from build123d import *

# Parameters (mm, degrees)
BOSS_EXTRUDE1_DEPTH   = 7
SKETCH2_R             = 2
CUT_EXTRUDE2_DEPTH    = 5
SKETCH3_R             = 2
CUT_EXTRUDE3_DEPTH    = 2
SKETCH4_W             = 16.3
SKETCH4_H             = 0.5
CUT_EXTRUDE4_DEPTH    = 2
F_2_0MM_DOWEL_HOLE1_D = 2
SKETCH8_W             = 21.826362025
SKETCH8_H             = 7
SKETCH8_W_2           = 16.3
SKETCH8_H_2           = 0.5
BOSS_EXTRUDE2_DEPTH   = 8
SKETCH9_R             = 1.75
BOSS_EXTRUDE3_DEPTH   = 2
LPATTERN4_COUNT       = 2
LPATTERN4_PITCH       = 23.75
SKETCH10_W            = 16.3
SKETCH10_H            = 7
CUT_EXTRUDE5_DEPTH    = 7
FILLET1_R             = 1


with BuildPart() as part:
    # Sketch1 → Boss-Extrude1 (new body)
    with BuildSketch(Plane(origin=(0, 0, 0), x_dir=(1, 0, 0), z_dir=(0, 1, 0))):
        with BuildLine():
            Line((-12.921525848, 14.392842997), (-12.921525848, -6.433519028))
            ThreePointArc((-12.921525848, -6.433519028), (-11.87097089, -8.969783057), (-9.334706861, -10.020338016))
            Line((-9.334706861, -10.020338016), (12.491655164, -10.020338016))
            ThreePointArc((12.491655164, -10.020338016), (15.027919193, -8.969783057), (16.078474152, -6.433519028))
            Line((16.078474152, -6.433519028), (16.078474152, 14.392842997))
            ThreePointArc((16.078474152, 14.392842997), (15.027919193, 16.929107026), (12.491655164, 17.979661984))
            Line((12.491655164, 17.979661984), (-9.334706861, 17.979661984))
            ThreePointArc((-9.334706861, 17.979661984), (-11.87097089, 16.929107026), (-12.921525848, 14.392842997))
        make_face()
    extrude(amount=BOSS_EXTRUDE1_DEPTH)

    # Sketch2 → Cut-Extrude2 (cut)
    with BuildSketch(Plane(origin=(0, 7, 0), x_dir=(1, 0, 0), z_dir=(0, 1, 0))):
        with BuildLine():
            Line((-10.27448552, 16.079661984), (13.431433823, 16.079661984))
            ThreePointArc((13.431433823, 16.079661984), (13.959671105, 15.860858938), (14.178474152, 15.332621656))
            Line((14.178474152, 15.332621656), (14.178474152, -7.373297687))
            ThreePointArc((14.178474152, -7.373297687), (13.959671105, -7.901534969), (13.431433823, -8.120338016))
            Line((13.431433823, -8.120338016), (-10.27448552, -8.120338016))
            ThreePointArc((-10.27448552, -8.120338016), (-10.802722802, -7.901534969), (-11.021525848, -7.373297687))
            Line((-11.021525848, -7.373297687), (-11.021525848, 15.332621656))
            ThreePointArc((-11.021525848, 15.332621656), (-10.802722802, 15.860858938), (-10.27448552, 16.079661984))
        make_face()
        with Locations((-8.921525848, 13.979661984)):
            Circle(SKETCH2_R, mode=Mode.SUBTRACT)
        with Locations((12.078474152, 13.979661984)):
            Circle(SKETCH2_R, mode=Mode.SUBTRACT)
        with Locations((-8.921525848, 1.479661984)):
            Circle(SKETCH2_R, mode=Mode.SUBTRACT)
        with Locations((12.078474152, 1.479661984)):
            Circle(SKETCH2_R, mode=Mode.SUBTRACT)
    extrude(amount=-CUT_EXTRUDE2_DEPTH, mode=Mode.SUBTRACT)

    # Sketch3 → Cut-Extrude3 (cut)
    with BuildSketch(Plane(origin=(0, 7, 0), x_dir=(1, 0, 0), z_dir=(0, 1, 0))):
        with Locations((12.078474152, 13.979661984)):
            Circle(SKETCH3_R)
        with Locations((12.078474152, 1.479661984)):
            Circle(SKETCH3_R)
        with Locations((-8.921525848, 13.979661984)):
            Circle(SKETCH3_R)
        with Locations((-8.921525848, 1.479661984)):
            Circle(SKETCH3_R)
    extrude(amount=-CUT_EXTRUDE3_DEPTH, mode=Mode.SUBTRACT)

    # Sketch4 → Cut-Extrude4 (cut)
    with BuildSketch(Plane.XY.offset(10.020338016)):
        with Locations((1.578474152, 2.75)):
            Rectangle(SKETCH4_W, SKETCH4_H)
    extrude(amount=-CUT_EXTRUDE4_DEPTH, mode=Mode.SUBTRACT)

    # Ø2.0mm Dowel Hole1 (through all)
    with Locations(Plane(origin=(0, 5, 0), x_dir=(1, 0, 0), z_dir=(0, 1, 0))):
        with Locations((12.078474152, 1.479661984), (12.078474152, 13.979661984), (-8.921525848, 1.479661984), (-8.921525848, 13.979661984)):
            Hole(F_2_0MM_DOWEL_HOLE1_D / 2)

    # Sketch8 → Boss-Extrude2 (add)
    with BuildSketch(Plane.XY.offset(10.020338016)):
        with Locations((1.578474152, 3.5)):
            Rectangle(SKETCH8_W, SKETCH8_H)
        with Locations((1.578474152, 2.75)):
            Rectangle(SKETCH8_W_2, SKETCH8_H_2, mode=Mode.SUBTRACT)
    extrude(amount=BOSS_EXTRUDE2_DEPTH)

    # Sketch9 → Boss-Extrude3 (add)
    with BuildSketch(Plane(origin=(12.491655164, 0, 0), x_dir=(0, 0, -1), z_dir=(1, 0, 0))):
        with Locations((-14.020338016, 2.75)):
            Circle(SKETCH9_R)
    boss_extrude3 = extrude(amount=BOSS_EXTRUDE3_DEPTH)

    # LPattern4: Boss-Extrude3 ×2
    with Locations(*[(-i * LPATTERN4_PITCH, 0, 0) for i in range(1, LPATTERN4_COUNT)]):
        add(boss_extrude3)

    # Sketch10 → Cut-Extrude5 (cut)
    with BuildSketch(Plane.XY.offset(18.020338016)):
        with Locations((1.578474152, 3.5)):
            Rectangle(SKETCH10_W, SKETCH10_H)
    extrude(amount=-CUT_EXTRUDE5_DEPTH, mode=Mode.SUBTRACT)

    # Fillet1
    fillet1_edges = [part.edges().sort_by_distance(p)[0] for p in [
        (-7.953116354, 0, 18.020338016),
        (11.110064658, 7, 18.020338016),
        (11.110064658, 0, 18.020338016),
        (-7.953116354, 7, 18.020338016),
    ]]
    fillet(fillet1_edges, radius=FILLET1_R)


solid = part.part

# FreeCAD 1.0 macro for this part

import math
import FreeCAD as App
import Part
import Sketcher

V = App.Vector
Q = App.Units.Quantity


def edges_at(feature, points):
    """Names of the edges that pass closest to the given points."""
    edges = feature.Shape.Edges
    near = lambda p: min(range(len(edges)), key=lambda i: edges[i].distToShape(Part.Vertex(*p))[0])
    return sorted({f"Edge{near(p) + 1}" for p in points})

doc = App.newDocument("Part")
params = doc.addObject("Spreadsheet::Sheet", "Params")
for row, (alias, value) in enumerate([
    ("pad1_length", "7 mm"),
    ("sketch2_diameter", "4 mm"),
    ("pocket1_length", "5 mm"),
    ("sketch3_diameter", "4 mm"),
    ("pocket2_length", "2 mm"),
    ("sketch4_width", "16.3 mm"),
    ("sketch4_height", "0.5 mm"),
    ("pocket3_length", "2 mm"),
    ("sketch5_diameter", "2 mm"),
    ("hole_diameter", "2 mm"),
    ("sketch6_height", "7 mm"),
    ("sketch6_width", "16.3 mm"),
    ("sketch6_height2", "0.5 mm"),
    ("pad2_length", "8 mm"),
    ("sketch7_diameter", "3.5 mm"),
    ("pad3_length", "2 mm"),
    ("linearpattern_pitch", "23.75 mm"),
    ("sketch8_height", "7 mm"),
    ("sketch8_width", "16.3 mm"),
    ("pocket4_length", "7 mm"),
    ("fillet_radius", "1 mm"),
], start=1):
    params.set(f"A{row}", alias)
    params.set(f"B{row}", "=" + value)
    params.setAlias(f"B{row}", alias)

body = doc.addObject("PartDesign::Body", "Body")

# Sketch on XZ plane
sketch1 = body.newObject("Sketcher::SketchObject", "Sketch")
sketch1.AttachmentSupport = (doc.getObject("XZ_Plane"), [""])
sketch1.MapMode = "FlatFace"
sketch1.addGeometry(Part.LineSegment(V(-12.9, -14.4, 0), V(-12.9, 6.4, 0)), False)
sketch1.addGeometry(Part.ArcOfCircle(Part.Circle(V(-9.3, 6.4, 0), V(0, 0, 1), 3.6), math.radians(90), math.radians(180)), False)
sketch1.addGeometry(Part.LineSegment(V(-9.3, 10, 0), V(12.5, 10, 0)), False)
sketch1.addGeometry(Part.ArcOfCircle(Part.Circle(V(12.5, 6.4, 0), V(0, 0, 1), 3.6), math.radians(0), math.radians(90)), False)
sketch1.addGeometry(Part.LineSegment(V(16.1, 6.4, 0), V(16.1, -14.4, 0)), False)
sketch1.addGeometry(Part.ArcOfCircle(Part.Circle(V(12.5, -14.4, 0), V(0, 0, 1), 3.6), math.radians(-90), math.radians(0)), False)
sketch1.addGeometry(Part.LineSegment(V(12.5, -18, 0), V(-9.3, -18, 0)), False)
sketch1.addGeometry(Part.ArcOfCircle(Part.Circle(V(-9.3, -14.4, 0), V(0, 0, 1), 3.6), math.radians(180), math.radians(270)), False)
sketch1.addConstraint(Sketcher.Constraint("Tangent", 0, 2, 1, 2))
sketch1.addConstraint(Sketcher.Constraint("Tangent", 1, 1, 2, 1))
sketch1.addConstraint(Sketcher.Constraint("Tangent", 2, 2, 3, 2))
sketch1.addConstraint(Sketcher.Constraint("Tangent", 3, 1, 4, 1))
sketch1.addConstraint(Sketcher.Constraint("Tangent", 4, 2, 5, 2))
sketch1.addConstraint(Sketcher.Constraint("Tangent", 5, 1, 6, 1))
sketch1.addConstraint(Sketcher.Constraint("Tangent", 6, 2, 7, 2))
sketch1.addConstraint(Sketcher.Constraint("Tangent", 7, 1, 0, 1))
sketch1.addConstraint(Sketcher.Constraint("Vertical", 0))
sketch1.addConstraint(Sketcher.Constraint("Horizontal", 2))
sketch1.addConstraint(Sketcher.Constraint("Vertical", 4))
sketch1.addConstraint(Sketcher.Constraint("Horizontal", 6))
sketch1.addConstraint(Sketcher.Constraint("Equal", 1, 3))
sketch1.addConstraint(Sketcher.Constraint("Equal", 3, 5))
sketch1.addConstraint(Sketcher.Constraint("Equal", 5, 7))
sketch1.addConstraint(Sketcher.Constraint("Radius", 1, Q("3.586819 mm")))
sketch1.addConstraint(Sketcher.Constraint("DistanceX", 2, 1, 2, 2, Q("21.826362 mm")))
sketch1.addConstraint(Sketcher.Constraint("DistanceY", 0, 1, 0, 2, Q("20.826362 mm")))
sketch1.addConstraint(Sketcher.Constraint("DistanceY", -1, 1, 1, 3, Q("6.433519 mm")))
sketch1.addConstraint(Sketcher.Constraint("DistanceX", 1, 3, -1, 1, Q("9.334707 mm")))
pad1 = body.newObject("PartDesign::Pad", "Pad")
pad1.Profile = sketch1
pad1.setExpression("Length", "Params.pad1_length")
pad1.Reversed = True

# Sketch on XZ plane
sketch2 = body.newObject("Sketcher::SketchObject", "Sketch001")
sketch2.AttachmentSupport = (doc.getObject("XZ_Plane"), [""])
sketch2.MapMode = "FlatFace"
sketch2.AttachmentOffset = App.Placement(V(0, 0, -7), App.Rotation())
sketch2.addGeometry(Part.LineSegment(V(13.4, -16.1, 0), V(-10.3, -16.1, 0)), False)
sketch2.addGeometry(Part.ArcOfCircle(Part.Circle(V(-10.3, -15.3, 0), V(0, 0, 1), 0.7), math.radians(180), math.radians(270)), False)
sketch2.addGeometry(Part.LineSegment(V(-11, -15.3, 0), V(-11, 7.4, 0)), False)
sketch2.addGeometry(Part.ArcOfCircle(Part.Circle(V(-10.3, 7.4, 0), V(0, 0, 1), 0.7), math.radians(90), math.radians(180)), False)
sketch2.addGeometry(Part.LineSegment(V(-10.3, 8.1, 0), V(13.4, 8.1, 0)), False)
sketch2.addGeometry(Part.ArcOfCircle(Part.Circle(V(13.4, 7.4, 0), V(0, 0, 1), 0.7), math.radians(0), math.radians(90)), False)
sketch2.addGeometry(Part.LineSegment(V(14.2, 7.4, 0), V(14.2, -15.3, 0)), False)
sketch2.addGeometry(Part.ArcOfCircle(Part.Circle(V(13.4, -15.3, 0), V(0, 0, 1), 0.7), math.radians(-90), math.radians(0)), False)
sketch2.addGeometry(Part.Circle(V(12.1, -1.5, 0), V(0, 0, 1), 2), False)
sketch2.addGeometry(Part.Circle(V(-8.9, -1.5, 0), V(0, 0, 1), 2), False)
sketch2.addGeometry(Part.Circle(V(12.1, -14, 0), V(0, 0, 1), 2), False)
sketch2.addGeometry(Part.Circle(V(-8.9, -14, 0), V(0, 0, 1), 2), False)
sketch2.addConstraint(Sketcher.Constraint("Tangent", 0, 2, 1, 2))
sketch2.addConstraint(Sketcher.Constraint("Tangent", 1, 1, 2, 1))
sketch2.addConstraint(Sketcher.Constraint("Tangent", 2, 2, 3, 2))
sketch2.addConstraint(Sketcher.Constraint("Tangent", 3, 1, 4, 1))
sketch2.addConstraint(Sketcher.Constraint("Tangent", 4, 2, 5, 2))
sketch2.addConstraint(Sketcher.Constraint("Tangent", 5, 1, 6, 1))
sketch2.addConstraint(Sketcher.Constraint("Tangent", 6, 2, 7, 2))
sketch2.addConstraint(Sketcher.Constraint("Tangent", 7, 1, 0, 1))
sketch2.addConstraint(Sketcher.Constraint("Horizontal", 0))
sketch2.addConstraint(Sketcher.Constraint("Vertical", 2))
sketch2.addConstraint(Sketcher.Constraint("Horizontal", 4))
sketch2.addConstraint(Sketcher.Constraint("Vertical", 6))
sketch2.addConstraint(Sketcher.Constraint("Equal", 1, 3))
sketch2.addConstraint(Sketcher.Constraint("Equal", 3, 5))
sketch2.addConstraint(Sketcher.Constraint("Equal", 5, 7))
sketch2.addConstraint(Sketcher.Constraint("Equal", 8, 9))
sketch2.addConstraint(Sketcher.Constraint("Equal", 9, 10))
sketch2.addConstraint(Sketcher.Constraint("Equal", 10, 11))
sketch2.addConstraint(Sketcher.Constraint("Horizontal", 8, 3, 9, 3))
sketch2.addConstraint(Sketcher.Constraint("Horizontal", 10, 3, 11, 3))
sketch2.addConstraint(Sketcher.Constraint("Vertical", 8, 3, 10, 3))
sketch2.addConstraint(Sketcher.Constraint("Vertical", 9, 3, 11, 3))
sketch2.addConstraint(Sketcher.Constraint("Diameter", 8, Q("4 mm")))
sketch2.addConstraint(Sketcher.Constraint("DistanceX", 9, 3, 8, 3, Q("21 mm")))
sketch2.addConstraint(Sketcher.Constraint("DistanceY", 10, 3, 8, 3, Q("12.5 mm")))
sketch2.addConstraint(Sketcher.Constraint("DistanceY", 0, 2, 11, 3, Q("2.1 mm")))
sketch2.addConstraint(Sketcher.Constraint("DistanceX", 1, 1, 11, 3, Q("2.1 mm")))
sketch2.addConstraint(Sketcher.Constraint("DistanceY", 9, 3, 3, 1, Q("9.6 mm")))
sketch2.addConstraint(Sketcher.Constraint("DistanceX", 8, 3, 5, 1, Q("2.1 mm")))
sketch2.addConstraint(Sketcher.Constraint("Radius", 1, Q("0.74704 mm")))
sketch2.addConstraint(Sketcher.Constraint("DistanceY", 1, 3, -1, 1, Q("15.332622 mm")))
sketch2.addConstraint(Sketcher.Constraint("DistanceX", 1, 3, -1, 1, Q("10.274486 mm")))
sketch2.setExpression("Constraints[22]", "Params.sketch2_diameter")
pocket1 = body.newObject("PartDesign::Pocket", "Pocket")
pocket1.Profile = sketch2
pocket1.setExpression("Length", "Params.pocket1_length")
pocket1.Reversed = True

# Sketch on XZ plane
sketch3 = body.newObject("Sketcher::SketchObject", "Sketch002")
sketch3.AttachmentSupport = (doc.getObject("XZ_Plane"), [""])
sketch3.MapMode = "FlatFace"
sketch3.AttachmentOffset = App.Placement(V(0, 0, -7), App.Rotation())
sketch3.addGeometry(Part.Circle(V(12.1, -14, 0), V(0, 0, 1), 2), False)
sketch3.addGeometry(Part.Circle(V(12.1, -1.5, 0), V(0, 0, 1), 2), False)
sketch3.addGeometry(Part.Circle(V(-8.9, -14, 0), V(0, 0, 1), 2), False)
sketch3.addGeometry(Part.Circle(V(-8.9, -1.5, 0), V(0, 0, 1), 2), False)
sketch3.addConstraint(Sketcher.Constraint("Equal", 0, 1))
sketch3.addConstraint(Sketcher.Constraint("Equal", 1, 2))
sketch3.addConstraint(Sketcher.Constraint("Equal", 2, 3))
sketch3.addConstraint(Sketcher.Constraint("Horizontal", 0, 3, 2, 3))
sketch3.addConstraint(Sketcher.Constraint("Horizontal", 1, 3, 3, 3))
sketch3.addConstraint(Sketcher.Constraint("Vertical", 0, 3, 1, 3))
sketch3.addConstraint(Sketcher.Constraint("Vertical", 2, 3, 3, 3))
sketch3.addConstraint(Sketcher.Constraint("Diameter", 0, Q("4 mm")))
sketch3.addConstraint(Sketcher.Constraint("DistanceX", 2, 3, 0, 3, Q("21 mm")))
sketch3.addConstraint(Sketcher.Constraint("DistanceY", 0, 3, 1, 3, Q("12.5 mm")))
sketch3.addConstraint(Sketcher.Constraint("DistanceY", 0, 3, -1, 1, Q("13.979662 mm")))
sketch3.addConstraint(Sketcher.Constraint("DistanceX", -1, 1, 0, 3, Q("12.078474 mm")))
sketch3.setExpression("Constraints[7]", "Params.sketch3_diameter")
pocket2 = body.newObject("PartDesign::Pocket", "Pocket001")
pocket2.Profile = sketch3
pocket2.setExpression("Length", "Params.pocket2_length")
pocket2.Reversed = True

# Sketch on XY plane
sketch4 = body.newObject("Sketcher::SketchObject", "Sketch003")
sketch4.AttachmentSupport = (doc.getObject("XY_Plane"), [""])
sketch4.MapMode = "FlatFace"
sketch4.AttachmentOffset = App.Placement(V(0, 0, 10.020338), App.Rotation())
sketch4.addGeometry(Part.LineSegment(V(-6.6, 3, 0), V(-6.6, 2.5, 0)), False)
sketch4.addGeometry(Part.LineSegment(V(-6.6, 2.5, 0), V(9.7, 2.5, 0)), False)
sketch4.addGeometry(Part.LineSegment(V(9.7, 2.5, 0), V(9.7, 3, 0)), False)
sketch4.addGeometry(Part.LineSegment(V(9.7, 3, 0), V(-6.6, 3, 0)), False)
sketch4.addConstraint(Sketcher.Constraint("Coincident", 0, 2, 1, 1))
sketch4.addConstraint(Sketcher.Constraint("Coincident", 1, 2, 2, 1))
sketch4.addConstraint(Sketcher.Constraint("Coincident", 2, 2, 3, 1))
sketch4.addConstraint(Sketcher.Constraint("Coincident", 3, 2, 0, 1))
sketch4.addConstraint(Sketcher.Constraint("Vertical", 0))
sketch4.addConstraint(Sketcher.Constraint("Horizontal", 1))
sketch4.addConstraint(Sketcher.Constraint("Vertical", 2))
sketch4.addConstraint(Sketcher.Constraint("Horizontal", 3))
sketch4.addConstraint(Sketcher.Constraint("DistanceX", 1, 1, 1, 2, Q("16.3 mm")))
sketch4.addConstraint(Sketcher.Constraint("DistanceY", 0, 2, 0, 1, Q("0.5 mm")))
sketch4.addConstraint(Sketcher.Constraint("DistanceY", -1, 1, 2, 2, Q("3 mm")))
sketch4.addConstraint(Sketcher.Constraint("DistanceX", 0, 2, -1, 1, Q("6.571526 mm")))
sketch4.setExpression("Constraints[8]", "Params.sketch4_width")
sketch4.setExpression("Constraints[9]", "Params.sketch4_height")
pocket3 = body.newObject("PartDesign::Pocket", "Pocket002")
pocket3.Profile = sketch4
pocket3.setExpression("Length", "Params.pocket3_length")

# Sketch on XZ plane
sketch5 = body.newObject("Sketcher::SketchObject", "Sketch004")
sketch5.AttachmentSupport = (doc.getObject("XZ_Plane"), [""])
sketch5.MapMode = "FlatFace"
sketch5.AttachmentOffset = App.Placement(V(0, 0, -5), App.Rotation())
sketch5.addGeometry(Part.Circle(V(12.1, -1.5, 0), V(0, 0, 1), 1), False)
sketch5.addGeometry(Part.Circle(V(12.1, -14, 0), V(0, 0, 1), 1), False)
sketch5.addGeometry(Part.Circle(V(-8.9, -1.5, 0), V(0, 0, 1), 1), False)
sketch5.addGeometry(Part.Circle(V(-8.9, -14, 0), V(0, 0, 1), 1), False)
sketch5.addConstraint(Sketcher.Constraint("Equal", 0, 1))
sketch5.addConstraint(Sketcher.Constraint("Equal", 1, 2))
sketch5.addConstraint(Sketcher.Constraint("Equal", 2, 3))
sketch5.addConstraint(Sketcher.Constraint("Horizontal", 0, 3, 2, 3))
sketch5.addConstraint(Sketcher.Constraint("Horizontal", 1, 3, 3, 3))
sketch5.addConstraint(Sketcher.Constraint("Vertical", 0, 3, 1, 3))
sketch5.addConstraint(Sketcher.Constraint("Vertical", 2, 3, 3, 3))
sketch5.addConstraint(Sketcher.Constraint("Diameter", 0, Q("2 mm")))
sketch5.addConstraint(Sketcher.Constraint("DistanceX", 2, 3, 0, 3, Q("21 mm")))
sketch5.addConstraint(Sketcher.Constraint("DistanceY", 1, 3, 0, 3, Q("12.5 mm")))
sketch5.addConstraint(Sketcher.Constraint("DistanceY", 0, 3, -1, 1, Q("1.479662 mm")))
sketch5.addConstraint(Sketcher.Constraint("DistanceX", -1, 1, 0, 3, Q("12.078474 mm")))
sketch5.setExpression("Constraints[7]", "Params.sketch5_diameter")
doc.recompute()
hole = body.newObject("PartDesign::Hole", "Hole")
hole.Profile = sketch5
hole.ThreadType = "None"
hole.setExpression("Diameter", "Params.hole_diameter")
hole.DepthType = "ThroughAll"
hole.Reversed = True

# Sketch on XY plane
sketch6 = body.newObject("Sketcher::SketchObject", "Sketch005")
sketch6.AttachmentSupport = (doc.getObject("XY_Plane"), [""])
sketch6.MapMode = "FlatFace"
sketch6.AttachmentOffset = App.Placement(V(0, 0, 10.020338), App.Rotation())
sketch6.addGeometry(Part.LineSegment(V(-9.3, 7, 0), V(-9.3, 0, 0)), False)
sketch6.addGeometry(Part.LineSegment(V(-9.3, 0, 0), V(12.5, 0, 0)), False)
sketch6.addGeometry(Part.LineSegment(V(12.5, 0, 0), V(12.5, 7, 0)), False)
sketch6.addGeometry(Part.LineSegment(V(12.5, 7, 0), V(-9.3, 7, 0)), False)
sketch6.addGeometry(Part.LineSegment(V(9.7, 2.5, 0), V(-6.6, 2.5, 0)), False)
sketch6.addGeometry(Part.LineSegment(V(-6.6, 2.5, 0), V(-6.6, 3, 0)), False)
sketch6.addGeometry(Part.LineSegment(V(-6.6, 3, 0), V(9.7, 3, 0)), False)
sketch6.addGeometry(Part.LineSegment(V(9.7, 3, 0), V(9.7, 2.5, 0)), False)
sketch6.addConstraint(Sketcher.Constraint("Coincident", 0, 2, 1, 1))
sketch6.addConstraint(Sketcher.Constraint("Coincident", 1, 2, 2, 1))
sketch6.addConstraint(Sketcher.Constraint("Coincident", 2, 2, 3, 1))
sketch6.addConstraint(Sketcher.Constraint("Coincident", 3, 2, 0, 1))
sketch6.addConstraint(Sketcher.Constraint("Coincident", 4, 2, 5, 1))
sketch6.addConstraint(Sketcher.Constraint("Coincident", 5, 2, 6, 1))
sketch6.addConstraint(Sketcher.Constraint("Coincident", 6, 2, 7, 1))
sketch6.addConstraint(Sketcher.Constraint("Coincident", 7, 2, 4, 1))
sketch6.addConstraint(Sketcher.Constraint("Vertical", 0))
sketch6.addConstraint(Sketcher.Constraint("Horizontal", 1))
sketch6.addConstraint(Sketcher.Constraint("Vertical", 2))
sketch6.addConstraint(Sketcher.Constraint("Horizontal", 3))
sketch6.addConstraint(Sketcher.Constraint("Horizontal", 4))
sketch6.addConstraint(Sketcher.Constraint("Vertical", 5))
sketch6.addConstraint(Sketcher.Constraint("Horizontal", 6))
sketch6.addConstraint(Sketcher.Constraint("Vertical", 7))
sketch6.addConstraint(Sketcher.Constraint("PointOnObject", 0, 2, -1))
sketch6.addConstraint(Sketcher.Constraint("DistanceY", 0, 2, 0, 1, Q("7 mm")))
sketch6.addConstraint(Sketcher.Constraint("DistanceX", 4, 2, 4, 1, Q("16.3 mm")))
sketch6.addConstraint(Sketcher.Constraint("DistanceY", 5, 1, 5, 2, Q("0.5 mm")))
sketch6.addConstraint(Sketcher.Constraint("DistanceY", -1, 1, 5, 2, Q("3 mm")))
sketch6.addConstraint(Sketcher.Constraint("DistanceX", 1, 1, 1, 2, Q("21.826362 mm")))
sketch6.addConstraint(Sketcher.Constraint("DistanceX", 0, 2, 4, 2, Q("2.763181 mm")))
sketch6.addConstraint(Sketcher.Constraint("DistanceX", 0, 2, -1, 1, Q("9.334707 mm")))
sketch6.setExpression("Constraints[17]", "Params.sketch6_height")
sketch6.setExpression("Constraints[18]", "Params.sketch6_width")
sketch6.setExpression("Constraints[19]", "Params.sketch6_height2")
pad2 = body.newObject("PartDesign::Pad", "Pad001")
pad2.Profile = sketch6
pad2.setExpression("Length", "Params.pad2_length")

# Sketch on YZ plane
sketch7 = body.newObject("Sketcher::SketchObject", "Sketch006")
sketch7.AttachmentSupport = (doc.getObject("YZ_Plane"), [""])
sketch7.MapMode = "FlatFace"
sketch7.AttachmentOffset = App.Placement(V(0, 0, 12.491655), App.Rotation())
sketch7.addGeometry(Part.Circle(V(2.8, 14, 0), V(0, 0, 1), 1.8), False)
sketch7.addConstraint(Sketcher.Constraint("Diameter", 0, Q("3.5 mm")))
sketch7.addConstraint(Sketcher.Constraint("DistanceX", -1, 1, 0, 3, Q("2.75 mm")))
sketch7.addConstraint(Sketcher.Constraint("DistanceY", -1, 1, 0, 3, Q("14.020338 mm")))
sketch7.setExpression("Constraints[0]", "Params.sketch7_diameter")
pad3 = body.newObject("PartDesign::Pad", "Pad002")
pad3.Profile = sketch7
pad3.setExpression("Length", "Params.pad3_length")
doc.recompute()

linearpattern = body.newObject("PartDesign::LinearPattern", "LinearPattern")
linearpattern.Originals = [pad3]
linearpattern.Direction = (doc.getObject("X_Axis"), [""])
linearpattern.Mode = "offset"
linearpattern.setExpression("Offset", "Params.linearpattern_pitch")
linearpattern.Occurrences = 2
linearpattern.Reversed = True
body.Tip = linearpattern

# Sketch on XY plane
sketch8 = body.newObject("Sketcher::SketchObject", "Sketch007")
sketch8.AttachmentSupport = (doc.getObject("XY_Plane"), [""])
sketch8.MapMode = "FlatFace"
sketch8.AttachmentOffset = App.Placement(V(0, 0, 18.020338), App.Rotation())
sketch8.addGeometry(Part.LineSegment(V(-7, 7, 0), V(-7, 0, 0)), False)
sketch8.addGeometry(Part.LineSegment(V(-7, 0, 0), V(10, 0, 0)), False)
sketch8.addGeometry(Part.LineSegment(V(10, 0, 0), V(10, 7, 0)), False)
sketch8.addGeometry(Part.LineSegment(V(10, 7, 0), V(-7, 7, 0)), False)
sketch8.addConstraint(Sketcher.Constraint("Coincident", 0, 2, 1, 1))
sketch8.addConstraint(Sketcher.Constraint("Coincident", 1, 2, 2, 1))
sketch8.addConstraint(Sketcher.Constraint("Coincident", 2, 2, 3, 1))
sketch8.addConstraint(Sketcher.Constraint("Coincident", 3, 2, 0, 1))
sketch8.addConstraint(Sketcher.Constraint("Vertical", 0))
sketch8.addConstraint(Sketcher.Constraint("Horizontal", 1))
sketch8.addConstraint(Sketcher.Constraint("Vertical", 2))
sketch8.addConstraint(Sketcher.Constraint("Horizontal", 3))
sketch8.addConstraint(Sketcher.Constraint("PointOnObject", 0, 2, -1))
sketch8.addConstraint(Sketcher.Constraint("DistanceY", 0, 2, 0, 1, Q("7 mm")))
sketch8.addConstraint(Sketcher.Constraint("DistanceX", 1, 1, 1, 2, Q("16.3 mm")))
sketch8.addConstraint(Sketcher.Constraint("DistanceX", 0, 2, -1, 1, Q("6.571526 mm")))
sketch8.setExpression("Constraints[9]", "Params.sketch8_height")
sketch8.setExpression("Constraints[10]", "Params.sketch8_width")
pocket4 = body.newObject("PartDesign::Pocket", "Pocket003")
pocket4.Profile = sketch8
pocket4.setExpression("Length", "Params.pocket4_length")
doc.recompute()

fillet = body.newObject("PartDesign::Fillet", "Fillet")
fillet.Base = (pocket4, edges_at(pocket4, [
    (-7.953, 0, 18.02),
    (11.11, 7, 18.02),
    (11.11, 0, 18.02),
    (-7.953, 7, 18.02),
]))
fillet.setExpression("Radius", "Params.fillet_radius")

doc.recompute()
